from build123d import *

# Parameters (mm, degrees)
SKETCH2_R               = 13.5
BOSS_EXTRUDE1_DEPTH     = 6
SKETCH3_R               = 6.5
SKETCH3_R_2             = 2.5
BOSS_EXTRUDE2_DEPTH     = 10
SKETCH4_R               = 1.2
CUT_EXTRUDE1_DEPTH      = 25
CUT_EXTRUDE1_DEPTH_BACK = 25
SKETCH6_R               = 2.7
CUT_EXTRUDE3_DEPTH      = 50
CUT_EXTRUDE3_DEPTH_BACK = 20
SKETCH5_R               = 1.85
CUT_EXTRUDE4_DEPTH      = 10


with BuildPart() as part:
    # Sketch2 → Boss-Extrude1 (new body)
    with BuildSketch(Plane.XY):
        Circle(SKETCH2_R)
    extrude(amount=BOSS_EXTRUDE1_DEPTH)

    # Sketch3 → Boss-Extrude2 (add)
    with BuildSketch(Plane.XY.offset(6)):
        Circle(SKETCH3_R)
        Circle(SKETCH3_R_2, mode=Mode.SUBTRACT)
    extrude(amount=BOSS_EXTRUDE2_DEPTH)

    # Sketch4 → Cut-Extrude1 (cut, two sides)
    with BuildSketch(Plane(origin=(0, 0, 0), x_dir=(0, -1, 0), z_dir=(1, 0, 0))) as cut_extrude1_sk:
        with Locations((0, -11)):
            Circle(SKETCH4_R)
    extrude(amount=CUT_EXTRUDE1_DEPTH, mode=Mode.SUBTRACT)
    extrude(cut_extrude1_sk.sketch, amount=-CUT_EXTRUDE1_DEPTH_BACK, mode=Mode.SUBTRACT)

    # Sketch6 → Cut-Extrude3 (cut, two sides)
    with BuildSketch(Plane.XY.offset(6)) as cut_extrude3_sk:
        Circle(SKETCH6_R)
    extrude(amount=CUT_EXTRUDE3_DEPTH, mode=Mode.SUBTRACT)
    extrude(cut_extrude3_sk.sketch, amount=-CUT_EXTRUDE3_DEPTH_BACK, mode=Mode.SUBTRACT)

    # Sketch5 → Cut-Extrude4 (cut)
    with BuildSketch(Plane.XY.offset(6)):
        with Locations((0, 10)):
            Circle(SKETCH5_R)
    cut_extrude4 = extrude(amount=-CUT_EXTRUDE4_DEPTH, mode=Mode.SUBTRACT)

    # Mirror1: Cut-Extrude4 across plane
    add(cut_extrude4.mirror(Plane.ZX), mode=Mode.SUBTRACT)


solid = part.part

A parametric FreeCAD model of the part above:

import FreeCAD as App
import Part
import Sketcher
from FreeCAD import Vector

doc = App.newDocument("Part")
body = doc.addObject("PartDesign::Body", "Body")

# Sketch on XY plane
sketch1 = body.newObject("Sketcher::SketchObject", "Sketch")
sketch1.AttachmentSupport = (doc.getObject("XY_Plane"), [""])
sketch1.MapMode = "FlatFace"
sketch1.addGeometry(Part.Circle(Vector(0, 0, 0), Vector(0, 0, 1), 14), False)
sketch1.addConstraint([
    Sketcher.Constraint("Coincident", 0, 3, -1, 1),
    Sketcher.Constraint("Diameter", 0, 27.0),
])
pad1 = body.newObject("PartDesign::Pad", "Pad")
pad1.Profile = sketch1
pad1.Length = 6

# Sketch on XY plane
sketch2 = body.newObject("Sketcher::SketchObject", "Sketch001")
sketch2.AttachmentSupport = (doc.getObject("XY_Plane"), [""])
sketch2.MapMode = "FlatFace"
sketch2.AttachmentOffset = App.Placement(Vector(0, 0, 6), App.Rotation())
sketch2.addGeometry([
    Part.Circle(Vector(0, 0, 0), Vector(0, 0, 1), 6.5),
    Part.Circle(Vector(0, 0, 0), Vector(0, 0, 1), 2.5),
], False)
sketch2.addConstraint([
    Sketcher.Constraint("Coincident", 0, 3, -1, 1),
    Sketcher.Constraint("Coincident", 1, 3, -1, 1),
    Sketcher.Constraint("Diameter", 0, 13.0),
    Sketcher.Constraint("Diameter", 1, 5.0),
])
pad2 = body.newObject("PartDesign::Pad", "Pad001")
pad2.Profile = sketch2
pad2.Length = 10

# Sketch on YZ plane
sketch3 = body.newObject("Sketcher::SketchObject", "Sketch002")
sketch3.AttachmentSupport = (doc.getObject("YZ_Plane"), [""])
sketch3.MapMode = "FlatFace"
sketch3.addGeometry(Part.Circle(Vector(0, 11, 0), Vector(0, 0, 1), 1.2), False)
sketch3.addConstraint([
    Sketcher.Constraint("PointOnObject", 0, 3, -2),
    Sketcher.Constraint("Diameter", 0, 2.4),
    Sketcher.Constraint("DistanceY", -1, 1, 0, 3, 11.0),
])
pocket1 = body.newObject("PartDesign::Pocket", "Pocket")
pocket1.Profile = sketch3
pocket1.Type = "ThroughAll"
pocket1.Midplane = True

# Sketch on XY plane
sketch4 = body.newObject("Sketcher::SketchObject", "Sketch003")
sketch4.AttachmentSupport = (doc.getObject("XY_Plane"), [""])
sketch4.MapMode = "FlatFace"
sketch4.AttachmentOffset = App.Placement(Vector(0, 0, 6), App.Rotation())
sketch4.addGeometry(Part.Circle(Vector(0, 0, 0), Vector(0, 0, 1), 2.7), False)
sketch4.addConstraint([
    Sketcher.Constraint("Coincident", 0, 3, -1, 1),
    Sketcher.Constraint("Diameter", 0, 5.4),
])
pocket2 = body.newObject("PartDesign::Pocket", "Pocket001")
pocket2.Profile = sketch4
pocket2.Type = "ThroughAll"
pocket2.Midplane = True

# Sketch on XY plane
sketch5 = body.newObject("Sketcher::SketchObject", "Sketch004")
sketch5.AttachmentSupport = (doc.getObject("XY_Plane"), [""])
sketch5.MapMode = "FlatFace"
sketch5.AttachmentOffset = App.Placement(Vector(0, 0, 6), App.Rotation())
sketch5.addGeometry(Part.Circle(Vector(0, 10, 0), Vector(0, 0, 1), 1.9), False)
sketch5.addConstraint([
    Sketcher.Constraint("PointOnObject", 0, 3, -2),
    Sketcher.Constraint("Diameter", 0, 3.7),
    Sketcher.Constraint("DistanceY", -1, 1, 0, 3, 10.0),
])
pocket3 = body.newObject("PartDesign::Pocket", "Pocket002")
pocket3.Profile = sketch5
pocket3.Length = 10
doc.recompute()

mirrored = body.newObject("PartDesign::Mirrored", "Mirrored")
mirrored.Originals = [pocket3]
mirrored.MirrorPlane = (doc.getObject("XZ_Plane"), [""])
body.Tip = mirrored

doc.recompute()
